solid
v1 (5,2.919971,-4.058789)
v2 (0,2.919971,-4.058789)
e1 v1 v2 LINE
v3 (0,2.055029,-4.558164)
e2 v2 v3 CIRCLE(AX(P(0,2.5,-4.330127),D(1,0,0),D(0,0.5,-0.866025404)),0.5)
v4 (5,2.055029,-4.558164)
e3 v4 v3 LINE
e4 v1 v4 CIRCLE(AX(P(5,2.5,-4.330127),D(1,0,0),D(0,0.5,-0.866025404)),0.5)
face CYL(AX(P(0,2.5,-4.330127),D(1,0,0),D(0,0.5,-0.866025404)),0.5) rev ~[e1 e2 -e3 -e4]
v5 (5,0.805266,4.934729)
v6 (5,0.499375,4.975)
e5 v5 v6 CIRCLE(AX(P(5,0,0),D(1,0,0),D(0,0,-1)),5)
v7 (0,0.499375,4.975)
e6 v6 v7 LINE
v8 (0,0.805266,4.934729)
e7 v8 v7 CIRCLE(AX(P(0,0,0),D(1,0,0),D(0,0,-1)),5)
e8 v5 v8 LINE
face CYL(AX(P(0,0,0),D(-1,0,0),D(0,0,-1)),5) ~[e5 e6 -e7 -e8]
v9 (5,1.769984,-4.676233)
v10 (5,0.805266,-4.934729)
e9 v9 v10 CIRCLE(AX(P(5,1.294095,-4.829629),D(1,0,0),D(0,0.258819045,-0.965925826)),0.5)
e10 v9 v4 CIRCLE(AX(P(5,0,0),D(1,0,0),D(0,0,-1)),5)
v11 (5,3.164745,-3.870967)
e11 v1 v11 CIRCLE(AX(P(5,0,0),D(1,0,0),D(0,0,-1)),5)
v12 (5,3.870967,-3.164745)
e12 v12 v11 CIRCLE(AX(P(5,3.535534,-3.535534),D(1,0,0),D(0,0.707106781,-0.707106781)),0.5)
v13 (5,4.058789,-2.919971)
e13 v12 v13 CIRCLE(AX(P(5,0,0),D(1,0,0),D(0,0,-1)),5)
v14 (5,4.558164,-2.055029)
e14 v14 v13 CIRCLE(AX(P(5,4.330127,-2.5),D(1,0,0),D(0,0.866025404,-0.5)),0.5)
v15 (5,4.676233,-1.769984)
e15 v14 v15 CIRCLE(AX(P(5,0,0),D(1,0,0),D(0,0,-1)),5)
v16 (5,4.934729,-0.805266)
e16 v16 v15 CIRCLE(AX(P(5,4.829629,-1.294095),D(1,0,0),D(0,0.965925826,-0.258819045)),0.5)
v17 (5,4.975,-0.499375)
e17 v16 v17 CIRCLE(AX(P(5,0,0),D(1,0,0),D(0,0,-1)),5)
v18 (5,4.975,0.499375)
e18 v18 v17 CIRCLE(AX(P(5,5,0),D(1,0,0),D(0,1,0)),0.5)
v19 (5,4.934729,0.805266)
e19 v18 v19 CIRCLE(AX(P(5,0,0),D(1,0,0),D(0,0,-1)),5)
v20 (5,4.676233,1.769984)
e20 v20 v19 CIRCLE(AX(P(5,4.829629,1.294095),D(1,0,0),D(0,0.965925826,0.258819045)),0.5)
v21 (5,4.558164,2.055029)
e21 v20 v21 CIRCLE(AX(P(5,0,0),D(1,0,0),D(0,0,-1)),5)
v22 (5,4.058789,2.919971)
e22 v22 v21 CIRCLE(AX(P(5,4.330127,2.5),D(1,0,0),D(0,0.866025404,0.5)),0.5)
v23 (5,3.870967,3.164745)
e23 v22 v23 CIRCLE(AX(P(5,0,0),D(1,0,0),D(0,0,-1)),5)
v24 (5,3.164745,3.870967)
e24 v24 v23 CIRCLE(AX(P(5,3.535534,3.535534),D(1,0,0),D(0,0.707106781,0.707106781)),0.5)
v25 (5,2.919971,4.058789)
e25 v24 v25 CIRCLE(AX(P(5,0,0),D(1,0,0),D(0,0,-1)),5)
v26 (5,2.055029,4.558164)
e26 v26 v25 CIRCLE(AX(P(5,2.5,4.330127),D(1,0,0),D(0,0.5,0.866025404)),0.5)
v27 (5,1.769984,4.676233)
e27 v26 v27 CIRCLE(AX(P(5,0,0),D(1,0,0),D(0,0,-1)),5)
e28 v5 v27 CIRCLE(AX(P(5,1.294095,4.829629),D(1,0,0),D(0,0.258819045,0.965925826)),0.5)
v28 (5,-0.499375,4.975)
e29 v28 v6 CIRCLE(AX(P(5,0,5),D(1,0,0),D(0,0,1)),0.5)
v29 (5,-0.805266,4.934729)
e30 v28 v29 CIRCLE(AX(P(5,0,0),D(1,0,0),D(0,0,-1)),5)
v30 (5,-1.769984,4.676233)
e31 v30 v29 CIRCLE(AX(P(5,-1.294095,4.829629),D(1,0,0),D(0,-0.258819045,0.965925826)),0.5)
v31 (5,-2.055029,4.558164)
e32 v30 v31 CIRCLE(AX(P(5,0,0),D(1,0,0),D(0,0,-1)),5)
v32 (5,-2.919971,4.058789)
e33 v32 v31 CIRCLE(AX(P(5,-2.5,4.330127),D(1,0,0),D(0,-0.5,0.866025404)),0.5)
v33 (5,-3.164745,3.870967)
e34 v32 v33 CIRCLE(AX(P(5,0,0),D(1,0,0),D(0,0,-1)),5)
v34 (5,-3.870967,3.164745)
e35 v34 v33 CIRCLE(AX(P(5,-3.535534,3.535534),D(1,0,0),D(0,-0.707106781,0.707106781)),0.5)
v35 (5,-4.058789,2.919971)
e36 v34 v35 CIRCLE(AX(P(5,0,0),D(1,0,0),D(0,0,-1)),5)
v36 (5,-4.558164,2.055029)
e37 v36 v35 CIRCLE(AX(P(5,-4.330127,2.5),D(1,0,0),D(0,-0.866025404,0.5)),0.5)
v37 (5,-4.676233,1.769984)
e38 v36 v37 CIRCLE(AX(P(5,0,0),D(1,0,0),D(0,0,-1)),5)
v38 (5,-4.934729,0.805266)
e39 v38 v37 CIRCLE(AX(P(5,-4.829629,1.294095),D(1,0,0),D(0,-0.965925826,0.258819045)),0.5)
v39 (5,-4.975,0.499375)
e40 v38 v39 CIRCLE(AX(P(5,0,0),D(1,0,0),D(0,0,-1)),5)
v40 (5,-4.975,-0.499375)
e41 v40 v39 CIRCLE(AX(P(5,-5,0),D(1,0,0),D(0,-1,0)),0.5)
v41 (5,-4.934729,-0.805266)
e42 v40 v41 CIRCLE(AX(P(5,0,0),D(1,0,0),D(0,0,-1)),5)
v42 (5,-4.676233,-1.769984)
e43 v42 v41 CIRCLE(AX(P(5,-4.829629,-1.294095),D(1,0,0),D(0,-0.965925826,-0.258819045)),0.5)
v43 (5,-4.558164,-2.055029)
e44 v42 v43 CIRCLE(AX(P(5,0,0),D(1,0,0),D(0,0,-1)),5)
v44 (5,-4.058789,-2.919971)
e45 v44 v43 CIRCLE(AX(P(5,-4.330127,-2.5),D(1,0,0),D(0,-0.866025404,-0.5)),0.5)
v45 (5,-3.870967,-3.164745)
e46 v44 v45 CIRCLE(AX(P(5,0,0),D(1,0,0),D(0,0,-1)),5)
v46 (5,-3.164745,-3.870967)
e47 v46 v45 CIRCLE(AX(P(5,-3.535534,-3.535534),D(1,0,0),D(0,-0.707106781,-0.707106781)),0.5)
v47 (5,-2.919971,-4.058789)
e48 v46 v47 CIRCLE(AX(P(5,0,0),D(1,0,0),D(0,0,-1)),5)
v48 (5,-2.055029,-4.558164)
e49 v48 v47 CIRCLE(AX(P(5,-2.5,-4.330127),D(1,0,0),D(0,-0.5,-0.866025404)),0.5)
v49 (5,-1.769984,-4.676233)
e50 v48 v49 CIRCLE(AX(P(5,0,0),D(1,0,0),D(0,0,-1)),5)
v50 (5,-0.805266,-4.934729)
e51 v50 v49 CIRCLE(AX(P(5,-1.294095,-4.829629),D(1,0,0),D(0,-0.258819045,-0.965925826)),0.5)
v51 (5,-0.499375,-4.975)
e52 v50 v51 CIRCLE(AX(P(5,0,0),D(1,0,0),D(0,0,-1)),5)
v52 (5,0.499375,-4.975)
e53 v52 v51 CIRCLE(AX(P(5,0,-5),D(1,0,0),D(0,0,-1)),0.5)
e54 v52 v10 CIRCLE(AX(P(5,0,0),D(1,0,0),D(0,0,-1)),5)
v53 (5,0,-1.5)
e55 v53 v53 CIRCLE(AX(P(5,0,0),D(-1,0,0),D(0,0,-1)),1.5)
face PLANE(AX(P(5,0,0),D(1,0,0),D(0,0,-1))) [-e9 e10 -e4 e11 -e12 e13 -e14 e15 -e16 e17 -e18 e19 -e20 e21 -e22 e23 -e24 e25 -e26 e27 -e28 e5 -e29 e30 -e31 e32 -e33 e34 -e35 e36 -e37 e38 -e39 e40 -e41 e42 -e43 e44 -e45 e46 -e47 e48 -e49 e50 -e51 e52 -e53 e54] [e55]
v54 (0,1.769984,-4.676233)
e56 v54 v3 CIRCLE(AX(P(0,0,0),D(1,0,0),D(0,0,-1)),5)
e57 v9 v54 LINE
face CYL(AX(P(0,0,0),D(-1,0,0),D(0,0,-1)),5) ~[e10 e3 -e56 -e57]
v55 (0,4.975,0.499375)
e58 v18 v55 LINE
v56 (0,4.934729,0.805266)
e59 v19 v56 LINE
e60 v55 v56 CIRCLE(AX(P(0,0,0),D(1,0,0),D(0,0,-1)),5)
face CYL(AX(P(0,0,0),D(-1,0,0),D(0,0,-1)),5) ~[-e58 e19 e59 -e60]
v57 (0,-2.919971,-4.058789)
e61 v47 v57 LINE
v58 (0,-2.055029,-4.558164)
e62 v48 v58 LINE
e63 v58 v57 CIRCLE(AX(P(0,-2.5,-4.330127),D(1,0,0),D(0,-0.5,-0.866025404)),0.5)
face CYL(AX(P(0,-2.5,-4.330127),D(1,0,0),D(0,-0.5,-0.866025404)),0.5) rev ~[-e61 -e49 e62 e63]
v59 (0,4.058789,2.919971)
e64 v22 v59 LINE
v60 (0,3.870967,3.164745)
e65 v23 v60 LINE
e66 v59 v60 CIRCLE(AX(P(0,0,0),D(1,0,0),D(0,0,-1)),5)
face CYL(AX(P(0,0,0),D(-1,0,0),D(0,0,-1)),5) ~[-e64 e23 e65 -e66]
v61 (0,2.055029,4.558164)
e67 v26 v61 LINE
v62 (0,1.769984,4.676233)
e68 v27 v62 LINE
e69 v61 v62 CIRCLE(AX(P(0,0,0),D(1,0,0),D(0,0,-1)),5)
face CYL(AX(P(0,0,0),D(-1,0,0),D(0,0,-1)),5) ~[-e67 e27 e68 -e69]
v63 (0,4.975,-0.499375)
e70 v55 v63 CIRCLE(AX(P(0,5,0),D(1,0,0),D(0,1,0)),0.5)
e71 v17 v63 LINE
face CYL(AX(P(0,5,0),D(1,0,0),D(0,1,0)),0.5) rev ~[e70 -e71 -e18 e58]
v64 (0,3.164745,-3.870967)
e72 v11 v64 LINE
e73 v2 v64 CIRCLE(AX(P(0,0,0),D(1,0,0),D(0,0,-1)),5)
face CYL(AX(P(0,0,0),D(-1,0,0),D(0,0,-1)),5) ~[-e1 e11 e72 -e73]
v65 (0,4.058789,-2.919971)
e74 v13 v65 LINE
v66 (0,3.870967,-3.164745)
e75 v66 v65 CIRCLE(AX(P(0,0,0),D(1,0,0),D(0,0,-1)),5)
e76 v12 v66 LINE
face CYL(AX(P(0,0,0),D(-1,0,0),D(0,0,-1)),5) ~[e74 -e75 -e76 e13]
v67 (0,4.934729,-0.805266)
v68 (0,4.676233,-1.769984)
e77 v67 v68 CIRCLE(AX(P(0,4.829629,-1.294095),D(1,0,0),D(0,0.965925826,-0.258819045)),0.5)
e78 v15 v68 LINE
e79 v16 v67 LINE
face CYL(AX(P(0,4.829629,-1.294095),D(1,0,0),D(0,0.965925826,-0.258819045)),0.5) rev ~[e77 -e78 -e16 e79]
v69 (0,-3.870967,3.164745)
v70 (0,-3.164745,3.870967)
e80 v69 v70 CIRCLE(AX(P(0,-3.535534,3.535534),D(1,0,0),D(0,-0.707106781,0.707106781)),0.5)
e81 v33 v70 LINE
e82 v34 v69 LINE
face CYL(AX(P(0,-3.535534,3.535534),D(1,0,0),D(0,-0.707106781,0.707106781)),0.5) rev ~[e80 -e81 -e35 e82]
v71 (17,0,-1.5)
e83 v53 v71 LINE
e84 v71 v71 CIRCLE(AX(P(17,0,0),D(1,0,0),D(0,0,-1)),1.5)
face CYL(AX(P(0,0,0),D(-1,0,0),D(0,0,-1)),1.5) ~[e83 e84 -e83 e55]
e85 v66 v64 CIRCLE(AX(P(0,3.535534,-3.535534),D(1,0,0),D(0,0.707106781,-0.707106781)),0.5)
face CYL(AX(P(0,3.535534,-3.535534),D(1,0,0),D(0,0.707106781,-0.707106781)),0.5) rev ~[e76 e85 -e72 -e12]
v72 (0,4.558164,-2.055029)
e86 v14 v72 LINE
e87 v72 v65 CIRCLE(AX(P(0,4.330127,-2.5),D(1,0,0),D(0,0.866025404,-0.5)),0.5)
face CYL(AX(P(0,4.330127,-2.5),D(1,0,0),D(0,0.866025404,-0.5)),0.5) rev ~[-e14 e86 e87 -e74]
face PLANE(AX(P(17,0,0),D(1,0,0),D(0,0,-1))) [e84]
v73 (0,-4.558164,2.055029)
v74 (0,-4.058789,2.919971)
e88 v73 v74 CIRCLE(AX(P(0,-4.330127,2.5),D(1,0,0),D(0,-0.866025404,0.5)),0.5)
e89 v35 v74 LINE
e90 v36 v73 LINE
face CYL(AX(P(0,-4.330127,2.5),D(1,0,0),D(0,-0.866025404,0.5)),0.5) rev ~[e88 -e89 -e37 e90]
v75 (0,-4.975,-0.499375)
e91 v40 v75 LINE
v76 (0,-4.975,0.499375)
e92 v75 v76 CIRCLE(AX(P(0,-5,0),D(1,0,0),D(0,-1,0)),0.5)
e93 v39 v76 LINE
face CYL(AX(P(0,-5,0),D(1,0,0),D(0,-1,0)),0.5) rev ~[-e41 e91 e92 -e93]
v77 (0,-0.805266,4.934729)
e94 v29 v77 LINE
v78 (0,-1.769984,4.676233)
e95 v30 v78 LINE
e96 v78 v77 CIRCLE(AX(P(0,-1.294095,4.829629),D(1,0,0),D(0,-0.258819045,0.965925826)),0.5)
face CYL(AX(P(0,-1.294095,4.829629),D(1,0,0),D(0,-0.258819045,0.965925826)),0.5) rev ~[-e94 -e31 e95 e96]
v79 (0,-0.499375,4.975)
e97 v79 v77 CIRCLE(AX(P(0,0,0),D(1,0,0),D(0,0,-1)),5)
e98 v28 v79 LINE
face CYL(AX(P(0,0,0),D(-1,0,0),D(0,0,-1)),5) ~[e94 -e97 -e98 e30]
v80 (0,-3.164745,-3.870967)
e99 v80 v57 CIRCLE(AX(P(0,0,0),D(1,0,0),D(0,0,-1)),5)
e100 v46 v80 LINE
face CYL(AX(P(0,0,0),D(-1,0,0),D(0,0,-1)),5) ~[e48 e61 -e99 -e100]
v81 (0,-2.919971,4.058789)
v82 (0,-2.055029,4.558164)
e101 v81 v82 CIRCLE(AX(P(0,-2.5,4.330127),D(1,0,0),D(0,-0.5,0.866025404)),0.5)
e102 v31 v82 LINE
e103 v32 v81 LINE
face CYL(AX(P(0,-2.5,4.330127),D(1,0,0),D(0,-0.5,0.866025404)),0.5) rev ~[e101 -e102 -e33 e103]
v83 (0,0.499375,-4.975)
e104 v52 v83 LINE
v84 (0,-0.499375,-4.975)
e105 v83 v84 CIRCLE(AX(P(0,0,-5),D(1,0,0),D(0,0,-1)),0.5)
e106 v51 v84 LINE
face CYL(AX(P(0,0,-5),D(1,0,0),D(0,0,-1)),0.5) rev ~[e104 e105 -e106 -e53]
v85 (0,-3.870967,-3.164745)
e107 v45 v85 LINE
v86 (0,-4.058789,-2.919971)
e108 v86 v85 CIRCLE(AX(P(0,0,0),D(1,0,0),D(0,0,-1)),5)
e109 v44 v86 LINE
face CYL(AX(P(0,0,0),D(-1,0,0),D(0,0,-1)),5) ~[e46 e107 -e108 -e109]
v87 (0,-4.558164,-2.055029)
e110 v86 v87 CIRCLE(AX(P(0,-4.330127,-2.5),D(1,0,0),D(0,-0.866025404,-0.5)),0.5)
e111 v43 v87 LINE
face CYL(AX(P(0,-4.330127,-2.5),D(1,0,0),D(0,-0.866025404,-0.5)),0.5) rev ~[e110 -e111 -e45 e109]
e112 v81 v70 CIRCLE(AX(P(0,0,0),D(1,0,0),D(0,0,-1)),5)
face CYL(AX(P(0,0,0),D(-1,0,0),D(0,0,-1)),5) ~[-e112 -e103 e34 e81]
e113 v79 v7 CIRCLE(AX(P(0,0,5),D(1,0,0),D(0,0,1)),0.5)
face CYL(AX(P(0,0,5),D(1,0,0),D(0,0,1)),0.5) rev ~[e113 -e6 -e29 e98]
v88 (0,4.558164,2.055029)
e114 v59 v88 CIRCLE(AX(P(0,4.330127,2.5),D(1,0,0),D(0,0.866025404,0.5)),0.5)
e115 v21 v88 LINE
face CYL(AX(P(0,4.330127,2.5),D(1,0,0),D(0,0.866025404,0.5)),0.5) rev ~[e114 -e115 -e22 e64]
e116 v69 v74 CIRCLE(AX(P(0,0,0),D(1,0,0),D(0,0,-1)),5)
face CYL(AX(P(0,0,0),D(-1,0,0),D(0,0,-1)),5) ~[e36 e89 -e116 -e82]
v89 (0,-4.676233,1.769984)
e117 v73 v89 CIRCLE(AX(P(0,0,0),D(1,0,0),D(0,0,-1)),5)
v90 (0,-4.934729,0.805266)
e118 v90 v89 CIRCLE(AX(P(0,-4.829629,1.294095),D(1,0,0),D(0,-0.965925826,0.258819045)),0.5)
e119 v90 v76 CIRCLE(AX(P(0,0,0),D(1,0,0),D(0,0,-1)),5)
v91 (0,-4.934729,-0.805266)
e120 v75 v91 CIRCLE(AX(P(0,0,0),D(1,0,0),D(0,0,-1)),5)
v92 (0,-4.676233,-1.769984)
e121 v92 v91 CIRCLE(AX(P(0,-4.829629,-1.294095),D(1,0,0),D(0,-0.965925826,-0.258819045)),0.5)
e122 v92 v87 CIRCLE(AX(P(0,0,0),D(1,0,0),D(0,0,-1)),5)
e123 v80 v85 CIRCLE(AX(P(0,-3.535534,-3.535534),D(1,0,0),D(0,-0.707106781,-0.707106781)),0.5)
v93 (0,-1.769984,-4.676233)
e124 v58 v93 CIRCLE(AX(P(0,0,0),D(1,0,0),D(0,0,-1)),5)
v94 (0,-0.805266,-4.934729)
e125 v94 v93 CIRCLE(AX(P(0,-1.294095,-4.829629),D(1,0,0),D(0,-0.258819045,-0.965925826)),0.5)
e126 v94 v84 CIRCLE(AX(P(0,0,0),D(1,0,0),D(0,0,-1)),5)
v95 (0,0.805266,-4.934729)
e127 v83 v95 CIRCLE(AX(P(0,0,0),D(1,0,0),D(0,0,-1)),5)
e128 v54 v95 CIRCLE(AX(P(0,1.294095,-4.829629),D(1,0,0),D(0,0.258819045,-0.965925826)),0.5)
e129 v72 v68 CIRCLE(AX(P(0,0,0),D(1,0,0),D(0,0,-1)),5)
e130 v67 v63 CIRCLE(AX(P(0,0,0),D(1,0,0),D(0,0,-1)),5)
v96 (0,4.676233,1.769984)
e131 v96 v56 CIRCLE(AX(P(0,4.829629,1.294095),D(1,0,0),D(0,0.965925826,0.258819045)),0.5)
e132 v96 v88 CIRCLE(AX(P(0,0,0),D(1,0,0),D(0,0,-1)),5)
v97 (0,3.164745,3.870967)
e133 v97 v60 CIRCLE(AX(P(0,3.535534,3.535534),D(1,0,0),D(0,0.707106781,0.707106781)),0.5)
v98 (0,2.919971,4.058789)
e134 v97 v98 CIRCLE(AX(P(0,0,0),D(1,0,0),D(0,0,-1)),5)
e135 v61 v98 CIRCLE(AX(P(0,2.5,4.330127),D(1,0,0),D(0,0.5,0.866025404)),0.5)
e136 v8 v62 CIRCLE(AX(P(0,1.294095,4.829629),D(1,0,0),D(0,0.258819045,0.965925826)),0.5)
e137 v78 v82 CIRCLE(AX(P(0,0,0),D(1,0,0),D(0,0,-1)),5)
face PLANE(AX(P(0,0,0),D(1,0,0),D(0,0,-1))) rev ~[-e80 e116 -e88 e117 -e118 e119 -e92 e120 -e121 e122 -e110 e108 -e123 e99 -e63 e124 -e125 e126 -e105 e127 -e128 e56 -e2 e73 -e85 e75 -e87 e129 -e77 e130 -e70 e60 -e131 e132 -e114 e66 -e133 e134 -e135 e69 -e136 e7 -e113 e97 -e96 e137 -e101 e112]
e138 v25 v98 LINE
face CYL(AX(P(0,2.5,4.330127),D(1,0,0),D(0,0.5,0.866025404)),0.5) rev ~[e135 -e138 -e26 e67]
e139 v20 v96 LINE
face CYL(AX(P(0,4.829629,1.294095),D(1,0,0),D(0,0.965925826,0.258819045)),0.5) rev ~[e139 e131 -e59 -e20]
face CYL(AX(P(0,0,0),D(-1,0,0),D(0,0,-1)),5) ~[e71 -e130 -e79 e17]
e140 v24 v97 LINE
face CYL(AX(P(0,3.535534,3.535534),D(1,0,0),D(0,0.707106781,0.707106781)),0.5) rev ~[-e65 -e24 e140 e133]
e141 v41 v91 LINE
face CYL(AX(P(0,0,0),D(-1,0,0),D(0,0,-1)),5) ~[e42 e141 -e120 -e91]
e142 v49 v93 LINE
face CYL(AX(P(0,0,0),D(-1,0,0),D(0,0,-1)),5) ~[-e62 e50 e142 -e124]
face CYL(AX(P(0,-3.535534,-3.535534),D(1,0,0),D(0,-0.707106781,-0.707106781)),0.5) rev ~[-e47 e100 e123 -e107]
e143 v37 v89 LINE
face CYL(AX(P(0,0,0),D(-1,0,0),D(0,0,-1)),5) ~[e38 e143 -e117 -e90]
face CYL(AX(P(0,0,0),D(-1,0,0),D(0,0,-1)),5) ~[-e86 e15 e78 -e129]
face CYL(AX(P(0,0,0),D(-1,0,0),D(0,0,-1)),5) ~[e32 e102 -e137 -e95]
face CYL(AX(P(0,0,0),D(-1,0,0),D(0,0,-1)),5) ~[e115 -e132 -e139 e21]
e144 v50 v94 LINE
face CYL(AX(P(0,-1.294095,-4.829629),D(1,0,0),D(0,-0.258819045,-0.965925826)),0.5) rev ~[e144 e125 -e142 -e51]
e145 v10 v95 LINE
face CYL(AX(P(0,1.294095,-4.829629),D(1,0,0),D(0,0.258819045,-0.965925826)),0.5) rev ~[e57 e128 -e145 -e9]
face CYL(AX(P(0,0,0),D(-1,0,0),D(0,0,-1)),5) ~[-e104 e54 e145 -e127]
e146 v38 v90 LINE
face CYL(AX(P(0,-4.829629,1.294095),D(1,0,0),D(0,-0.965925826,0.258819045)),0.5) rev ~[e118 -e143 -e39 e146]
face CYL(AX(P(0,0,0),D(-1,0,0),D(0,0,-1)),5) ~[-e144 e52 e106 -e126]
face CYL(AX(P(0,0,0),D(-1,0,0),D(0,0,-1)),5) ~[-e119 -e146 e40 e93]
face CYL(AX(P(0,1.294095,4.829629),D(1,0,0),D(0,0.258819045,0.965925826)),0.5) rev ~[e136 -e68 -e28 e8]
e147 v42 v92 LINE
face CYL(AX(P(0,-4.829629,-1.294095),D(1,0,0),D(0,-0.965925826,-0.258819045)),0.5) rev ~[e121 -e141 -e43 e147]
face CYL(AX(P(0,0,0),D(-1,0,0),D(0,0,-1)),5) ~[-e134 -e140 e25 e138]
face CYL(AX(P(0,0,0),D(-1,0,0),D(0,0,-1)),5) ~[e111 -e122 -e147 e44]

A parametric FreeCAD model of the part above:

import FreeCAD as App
import Part
import Sketcher

V = App.Vector

doc = App.newDocument("Part")
body = doc.addObject("PartDesign::Body", "Body")

sketch1 = body.newObject("Sketcher::SketchObject", "Sketch")
sketch1.AttachmentSupport = (doc.getObject("YZ_Plane"), [""])
sketch1.MapMode = "FlatFace"
sketch1.addGeometry(Part.Circle(V(0, 0, 0), V(0, 0, 1), 5), False)
sketch1.addConstraint([
    Sketcher.Constraint("Coincident", 0, 3, -1, 1),
    Sketcher.Constraint("Diameter", 0, 10.0),
])
pad1 = body.newObject("PartDesign::Pad", "Pad")
pad1.Profile = sketch1
pad1.Length = 5

sketch2 = body.newObject("Sketcher::SketchObject", "Sketch001")
sketch2.AttachmentSupport = (doc.getObject("YZ_Plane"), [""])
sketch2.MapMode = "FlatFace"
sketch2.addGeometry(Part.Circle(V(0, 0, 0), V(0, 0, 1), 1.5), False)
sketch2.addConstraint([
    Sketcher.Constraint("Coincident", 0, 3, -1, 1),
    Sketcher.Constraint("Diameter", 0, 3.0),
])
pad2 = body.newObject("PartDesign::Pad", "Pad001")
pad2.Profile = sketch2
pad2.Length = 17

sketch3 = body.newObject("Sketcher::SketchObject", "Sketch002")
sketch3.AttachmentSupport = (doc.getObject("YZ_Plane"), [""])
sketch3.MapMode = "FlatFace"
sketch3.addGeometry(Part.Circle(V(0, -5, 0), V(0, 0, 1), 0.5), False)
sketch3.addConstraint([
    Sketcher.Constraint("PointOnObject", 0, 3, -2),
    Sketcher.Constraint("Diameter", 0, 1.0),
    Sketcher.Constraint("DistanceY", 0, 3, -1, 1, 5.0),
])
pocket1 = body.newObject("PartDesign::Pocket", "Pocket")
pocket1.Profile = sketch3
pocket1.Length = 10
pocket1.Midplane = True
doc.recompute()

polarpattern = body.newObject("PartDesign::PolarPattern", "PolarPattern")
polarpattern.Originals = [pocket1]
polarpattern.Axis = (doc.getObject("X_Axis"), [""])
polarpattern.Angle = 360
polarpattern.Occurrences = 24
body.Tip = polarpattern

doc.recompute()
